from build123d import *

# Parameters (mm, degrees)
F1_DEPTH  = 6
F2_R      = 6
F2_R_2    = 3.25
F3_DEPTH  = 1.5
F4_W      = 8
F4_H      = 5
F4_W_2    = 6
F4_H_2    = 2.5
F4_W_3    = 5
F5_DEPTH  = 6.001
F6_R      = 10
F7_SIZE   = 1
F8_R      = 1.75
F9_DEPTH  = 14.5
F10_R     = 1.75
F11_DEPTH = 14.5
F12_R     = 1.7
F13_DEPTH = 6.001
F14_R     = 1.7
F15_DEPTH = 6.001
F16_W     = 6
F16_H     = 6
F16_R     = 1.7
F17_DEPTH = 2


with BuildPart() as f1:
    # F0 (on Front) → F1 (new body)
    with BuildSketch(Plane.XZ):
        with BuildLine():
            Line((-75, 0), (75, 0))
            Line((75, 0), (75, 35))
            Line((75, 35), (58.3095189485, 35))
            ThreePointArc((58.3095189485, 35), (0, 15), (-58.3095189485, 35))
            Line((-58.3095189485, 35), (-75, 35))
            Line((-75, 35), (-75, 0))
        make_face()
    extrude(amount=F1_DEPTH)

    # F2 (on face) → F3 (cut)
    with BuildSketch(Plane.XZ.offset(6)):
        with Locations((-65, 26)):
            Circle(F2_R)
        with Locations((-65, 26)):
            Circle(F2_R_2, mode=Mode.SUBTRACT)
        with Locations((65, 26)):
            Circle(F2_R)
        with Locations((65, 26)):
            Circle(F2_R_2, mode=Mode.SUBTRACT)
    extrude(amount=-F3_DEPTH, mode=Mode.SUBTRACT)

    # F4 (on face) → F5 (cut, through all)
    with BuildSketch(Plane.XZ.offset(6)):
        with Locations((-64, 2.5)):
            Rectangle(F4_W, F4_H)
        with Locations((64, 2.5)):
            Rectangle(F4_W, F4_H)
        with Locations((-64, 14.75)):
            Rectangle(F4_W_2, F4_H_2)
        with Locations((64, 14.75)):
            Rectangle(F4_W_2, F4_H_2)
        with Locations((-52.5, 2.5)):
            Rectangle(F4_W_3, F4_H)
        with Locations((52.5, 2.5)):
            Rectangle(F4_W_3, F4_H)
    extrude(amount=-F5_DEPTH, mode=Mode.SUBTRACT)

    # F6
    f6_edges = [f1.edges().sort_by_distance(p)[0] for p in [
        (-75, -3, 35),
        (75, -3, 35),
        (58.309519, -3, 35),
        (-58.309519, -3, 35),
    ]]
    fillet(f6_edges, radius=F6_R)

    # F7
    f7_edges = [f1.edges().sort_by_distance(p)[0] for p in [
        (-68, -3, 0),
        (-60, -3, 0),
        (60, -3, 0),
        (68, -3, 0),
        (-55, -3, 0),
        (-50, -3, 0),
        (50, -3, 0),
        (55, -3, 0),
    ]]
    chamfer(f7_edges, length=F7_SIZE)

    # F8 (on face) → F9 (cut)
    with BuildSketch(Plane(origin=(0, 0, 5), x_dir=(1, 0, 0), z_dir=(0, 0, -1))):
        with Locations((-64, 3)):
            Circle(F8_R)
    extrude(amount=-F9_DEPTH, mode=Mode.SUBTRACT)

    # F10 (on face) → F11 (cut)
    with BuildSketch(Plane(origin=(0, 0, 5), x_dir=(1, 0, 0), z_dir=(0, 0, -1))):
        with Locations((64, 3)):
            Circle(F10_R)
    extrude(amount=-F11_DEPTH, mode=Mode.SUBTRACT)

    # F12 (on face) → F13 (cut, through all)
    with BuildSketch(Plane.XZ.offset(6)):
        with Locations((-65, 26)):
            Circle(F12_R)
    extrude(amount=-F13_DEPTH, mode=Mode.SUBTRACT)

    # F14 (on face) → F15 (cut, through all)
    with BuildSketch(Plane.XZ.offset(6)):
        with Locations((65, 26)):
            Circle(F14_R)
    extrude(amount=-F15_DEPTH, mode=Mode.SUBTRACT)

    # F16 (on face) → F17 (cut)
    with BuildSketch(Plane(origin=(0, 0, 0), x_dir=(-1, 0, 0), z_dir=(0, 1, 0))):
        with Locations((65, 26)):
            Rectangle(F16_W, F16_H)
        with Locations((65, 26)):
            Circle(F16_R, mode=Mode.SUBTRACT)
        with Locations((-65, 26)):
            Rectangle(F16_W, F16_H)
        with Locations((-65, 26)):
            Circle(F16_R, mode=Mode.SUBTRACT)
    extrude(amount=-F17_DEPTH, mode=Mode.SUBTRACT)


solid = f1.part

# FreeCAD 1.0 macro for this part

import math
import FreeCAD as App
import Part
import Sketcher

V = App.Vector
Q = App.Units.Quantity


def edges_at(feature, points):
    """Names of the edges that pass closest to the given points."""
    edges = feature.Shape.Edges
    near = lambda p: min(range(len(edges)), key=lambda i: edges[i].distToShape(Part.Vertex(*p))[0])
    return sorted({f"Edge{near(p) + 1}" for p in points})


def add_polygon(sketch, points):
    """Adds a closed chain of lines whose ends are joined by coincident constraints."""
    first, n = sketch.GeometryCount, len(points)
    for a, b in zip(points, points[1:] + points[:1]):
        sketch.addGeometry(Part.LineSegment(App.Vector(*a, 0), App.Vector(*b, 0)), False)
    for i in range(n):
        sketch.addConstraint(Sketcher.Constraint("Coincident", first + i, 2, first + (i + 1) % n, 1))

doc = App.newDocument("Part")
body = doc.addObject("PartDesign::Body", "Body")

# Sketch on XZ plane
sketch1 = doc.addObject("Sketcher::SketchObject", "Sketch")
body.addObject(sketch1)
sketch1.AttachmentSupport = (doc.XZ_Plane, [""])
sketch1.MapMode = "FlatFace"
sketch1.addGeometry([
    Part.LineSegment(V(-75, 0, 0), V(75, 0, 0)),  # 0
    Part.LineSegment(V(75, 0, 0), V(75, 35, 0)),  # 1
    Part.LineSegment(V(75, 35, 0), V(58, 35, 0)),  # 2
    Part.ArcOfCircle(Part.Circle(V(0, 110, 0), V(0, 0, 1), 95), math.radians(-128), math.radians(-52)),  # 3
    Part.LineSegment(V(-58, 35, 0), V(-75, 35, 0)),  # 4
    Part.LineSegment(V(-75, 35, 0), V(-75, 0, 0)),  # 5
], False)
sketch1.addConstraint([
    Sketcher.Constraint("Coincident", 0, 2, 1, 1),
    Sketcher.Constraint("Coincident", 1, 2, 2, 1),
    Sketcher.Constraint("Coincident", 2, 2, 3, 2),
    Sketcher.Constraint("Coincident", 3, 1, 4, 1),
    Sketcher.Constraint("Coincident", 4, 2, 5, 1),
    Sketcher.Constraint("Coincident", 5, 2, 0, 1),
    Sketcher.Constraint("Horizontal", 0),
    Sketcher.Constraint("Vertical", 1),
    Sketcher.Constraint("Horizontal", 2),
    Sketcher.Constraint("Horizontal", 4),
    Sketcher.Constraint("Vertical", 5),
    Sketcher.Constraint("Symmetric", 0, 2, 5, 2, -1, 1),
    Sketcher.Constraint("Symmetric", 2, 2, 3, 1, -2),
    Sketcher.Constraint("Radius", 3, Q("95 mm")),
    Sketcher.Constraint("DistanceX", 0, 1, 0, 2, Q("150 mm")),
    Sketcher.Constraint("DistanceY", 1, 1, 1, 2, Q("35 mm")),
    Sketcher.Constraint("DistanceY", -1, 1, 3, 3, Q("110 mm")),
])
pad1 = doc.addObject("PartDesign::Pad", "Pad")
body.addObject(pad1)
pad1.Profile = sketch1
pad1.Length = 6

# Sketch on XZ plane
sketch2 = doc.addObject("Sketcher::SketchObject", "Sketch001")
body.addObject(sketch2)
sketch2.AttachmentSupport = (doc.XZ_Plane, [""])
sketch2.MapMode = "FlatFace"
sketch2.AttachmentOffset = App.Placement(V(0, 0, 6), App.Rotation())
sketch2.addGeometry([
    Part.Circle(V(-65, 26, 0), V(0, 0, 1), 6),
    Part.Circle(V(-65, 26, 0), V(0, 0, 1), 3.2),
    Part.Circle(V(65, 26, 0), V(0, 0, 1), 6),
    Part.Circle(V(65, 26, 0), V(0, 0, 1), 3.2),
], False)
sketch2.addConstraint([
    Sketcher.Constraint("Coincident", 1, 3, 0, 3),
    Sketcher.Constraint("Coincident", 3, 3, 2, 3),
    Sketcher.Constraint("Equal", 0, 2),
    Sketcher.Constraint("Equal", 1, 3),
    Sketcher.Constraint("Symmetric", 0, 3, 2, 3, -2),
    Sketcher.Constraint("Diameter", 0, Q("12 mm")),
    Sketcher.Constraint("Diameter", 1, Q("6.5 mm")),
    Sketcher.Constraint("DistanceX", 0, 3, -1, 1, Q("65 mm")),
    Sketcher.Constraint("DistanceY", -1, 1, 0, 3, Q("26 mm")),
])
pocket1 = doc.addObject("PartDesign::Pocket", "Pocket")
body.addObject(pocket1)
pocket1.Profile = sketch2
pocket1.Length = 1.5

# Sketch on XZ plane
sketch3 = doc.addObject("Sketcher::SketchObject", "Sketch002")
body.addObject(sketch3)
sketch3.AttachmentSupport = (doc.XZ_Plane, [""])
sketch3.MapMode = "FlatFace"
sketch3.AttachmentOffset = App.Placement(V(0, 0, 6), App.Rotation())
add_polygon(sketch3, [(-68, 5), (-68, 0), (-60, 0), (-60, 5)])  # lines 0-3
add_polygon(sketch3, [(60, 5), (60, 0), (68, 0), (68, 5)])  # lines 4-7
add_polygon(sketch3, [(-67, 16), (-67, 13.5), (-61, 13.5), (-61, 16)])  # lines 8-11
add_polygon(sketch3, [(61, 16), (61, 13.5), (67, 13.5), (67, 16)])  # lines 12-15
add_polygon(sketch3, [(-55, 5), (-55, 0), (-50, 0), (-50, 5)])  # lines 16-19
add_polygon(sketch3, [(50, 5), (50, 0), (55, 0), (55, 5)])  # lines 20-23
sketch3.addConstraint([
    Sketcher.Constraint("Vertical", 0),
    Sketcher.Constraint("Horizontal", 1),
    Sketcher.Constraint("Vertical", 2),
    Sketcher.Constraint("Horizontal", 3),
    Sketcher.Constraint("Vertical", 4),
    Sketcher.Constraint("Horizontal", 5),
    Sketcher.Constraint("Vertical", 6),
    Sketcher.Constraint("Horizontal", 7),
    Sketcher.Constraint("Vertical", 8),
    Sketcher.Constraint("Horizontal", 9),
    Sketcher.Constraint("Vertical", 10),
    Sketcher.Constraint("Horizontal", 11),
    Sketcher.Constraint("Vertical", 12),
    Sketcher.Constraint("Horizontal", 13),
    Sketcher.Constraint("Vertical", 14),
    Sketcher.Constraint("Horizontal", 15),
    Sketcher.Constraint("Vertical", 16),
    Sketcher.Constraint("Horizontal", 17),
    Sketcher.Constraint("Vertical", 18),
    Sketcher.Constraint("Horizontal", 19),
    Sketcher.Constraint("Vertical", 20),
    Sketcher.Constraint("Horizontal", 21),
    Sketcher.Constraint("Vertical", 22),
    Sketcher.Constraint("Horizontal", 23),
    Sketcher.Constraint("Symmetric", 1, 2, 4, 2, -1, 1),
    Sketcher.Constraint("Symmetric", 17, 2, 20, 2, -1, 1),
    Sketcher.Constraint("Symmetric", 0, 2, 5, 2, -2),
    Sketcher.Constraint("Symmetric", 9, 2, 12, 2, -2),
    Sketcher.Constraint("Symmetric", 11, 2, 14, 2, -2),
    Sketcher.Constraint("Symmetric", 16, 2, 21, 2, -2),
    Sketcher.Constraint("Horizontal", 3, 2, 6, 2),
    Sketcher.Constraint("Horizontal", 7, 2, 18, 2),
    Sketcher.Constraint("Horizontal", 19, 2, 22, 2),
    Sketcher.Constraint("Equal", 23, 0),
    Sketcher.Constraint("DistanceX", 1, 1, 1, 2, Q("8 mm")),
    Sketcher.Constraint("DistanceX", 9, 1, 9, 2, Q("6 mm")),
    Sketcher.Constraint("DistanceX", 17, 1, 17, 2, Q("5 mm")),
    Sketcher.Constraint("DistanceY", 8, 2, 8, 1, Q("2.5 mm")),
    Sketcher.Constraint("DistanceX", 0, 2, -1, 1, Q("68 mm")),
    Sketcher.Constraint("DistanceX", 8, 2, -1, 1, Q("67 mm")),
    Sketcher.Constraint("DistanceY", -1, 1, 10, 2, Q("16 mm")),
    Sketcher.Constraint("DistanceX", 16, 2, -1, 1, Q("55 mm")),
])
pocket2 = doc.addObject("PartDesign::Pocket", "Pocket001")
body.addObject(pocket2)
pocket2.Profile = sketch3
pocket2.Type = "ThroughAll"
doc.recompute()

fillet = doc.addObject("PartDesign::Fillet", "Fillet")
body.addObject(fillet)
fillet.Base = (pocket2, edges_at(pocket2, [
    (-75, -3, 35),
    (75, -3, 35),
    (58.31, -3, 35),
    (-58.31, -3, 35),
]))
fillet.Radius = 10
doc.recompute()

chamfer = doc.addObject("PartDesign::Chamfer", "Chamfer")
body.addObject(chamfer)
chamfer.Base = (fillet, edges_at(fillet, [
    (-68, -3, 0),
    (-60, -3, 0),
    (60, -3, 0),
    (68, -3, 0),
    (-55, -3, 0),
    (-50, -3, 0),
    (50, -3, 0),
    (55, -3, 0),
]))
chamfer.Size = 1

# Sketch on XY plane
sketch4 = doc.addObject("Sketcher::SketchObject", "Sketch003")
body.addObject(sketch4)
sketch4.AttachmentSupport = (doc.XY_Plane, [""])
sketch4.MapMode = "FlatFace"
sketch4.AttachmentOffset = App.Placement(V(0, 0, 5), App.Rotation())
sketch4.addGeometry(Part.Circle(V(-64, -3, 0), V(0, 0, 1), 1.8), False)
sketch4.addConstraint([
    Sketcher.Constraint("Diameter", 0, Q("3.5 mm")),
    Sketcher.Constraint("DistanceX", 0, 3, -1, 1, Q("64 mm")),
    Sketcher.Constraint("DistanceY", 0, 3, -1, 1, Q("3 mm")),
])
pocket3 = doc.addObject("PartDesign::Pocket", "Pocket002")
body.addObject(pocket3)
pocket3.Profile = sketch4
pocket3.Length = 14.5
pocket3.Reversed = True

# Sketch on XY plane
sketch5 = doc.addObject("Sketcher::SketchObject", "Sketch004")
body.addObject(sketch5)
sketch5.AttachmentSupport = (doc.XY_Plane, [""])
sketch5.MapMode = "FlatFace"
sketch5.AttachmentOffset = App.Placement(V(0, 0, 5), App.Rotation())
sketch5.addGeometry(Part.Circle(V(64, -3, 0), V(0, 0, 1), 1.8), False)
sketch5.addConstraint([
    Sketcher.Constraint("Diameter", 0, Q("3.5 mm")),
    Sketcher.Constraint("DistanceX", -1, 1, 0, 3, Q("64 mm")),
    Sketcher.Constraint("DistanceY", 0, 3, -1, 1, Q("3 mm")),
])
pocket4 = doc.addObject("PartDesign::Pocket", "Pocket003")
body.addObject(pocket4)
pocket4.Profile = sketch5
pocket4.Length = 14.5
pocket4.Reversed = True

# Sketch on XZ plane
sketch6 = doc.addObject("Sketcher::SketchObject", "Sketch005")
body.addObject(sketch6)
sketch6.AttachmentSupport = (doc.XZ_Plane, [""])
sketch6.MapMode = "FlatFace"
sketch6.AttachmentOffset = App.Placement(V(0, 0, 6), App.Rotation())
sketch6.addGeometry(Part.Circle(V(-65, 26, 0), V(0, 0, 1), 1.7), False)
sketch6.addConstraint([
    Sketcher.Constraint("Diameter", 0, Q("3.4 mm")),
    Sketcher.Constraint("DistanceX", 0, 3, -1, 1, Q("65 mm")),
    Sketcher.Constraint("DistanceY", -1, 1, 0, 3, Q("26 mm")),
])
pocket5 = doc.addObject("PartDesign::Pocket", "Pocket004")
body.addObject(pocket5)
pocket5.Profile = sketch6
pocket5.Type = "ThroughAll"

# Sketch on XZ plane
sketch7 = doc.addObject("Sketcher::SketchObject", "Sketch006")
body.addObject(sketch7)
sketch7.AttachmentSupport = (doc.XZ_Plane, [""])
sketch7.MapMode = "FlatFace"
sketch7.AttachmentOffset = App.Placement(V(0, 0, 6), App.Rotation())
sketch7.addGeometry(Part.Circle(V(65, 26, 0), V(0, 0, 1), 1.7), False)
sketch7.addConstraint([
    Sketcher.Constraint("Diameter", 0, Q("3.4 mm")),
    Sketcher.Constraint("DistanceX", -1, 1, 0, 3, Q("65 mm")),
    Sketcher.Constraint("DistanceY", -1, 1, 0, 3, Q("26 mm")),
])
pocket6 = doc.addObject("PartDesign::Pocket", "Pocket005")
body.addObject(pocket6)
pocket6.Profile = sketch7
pocket6.Type = "ThroughAll"

# Sketch on XZ plane
sketch8 = doc.addObject("Sketcher::SketchObject", "Sketch007")
body.addObject(sketch8)
sketch8.AttachmentSupport = (doc.XZ_Plane, [""])
sketch8.MapMode = "FlatFace"
add_polygon(sketch8, [(-62, 29), (-62, 23), (-68, 23), (-68, 29)])  # lines 0-3
sketch8.addGeometry(Part.Circle(V(-65, 26, 0), V(0, 0, 1), 1.7), False)  # 4
add_polygon(sketch8, [(68, 29), (68, 23), (62, 23), (62, 29)])  # lines 5-8
sketch8.addGeometry(Part.Circle(V(65, 26, 0), V(0, 0, 1), 1.7), False)  # 9
sketch8.addConstraint([
    Sketcher.Constraint("Vertical", 0),
    Sketcher.Constraint("Horizontal", 1),
    Sketcher.Constraint("Vertical", 2),
    Sketcher.Constraint("Horizontal", 3),
    Sketcher.Constraint("Vertical", 5),
    Sketcher.Constraint("Horizontal", 6),
    Sketcher.Constraint("Vertical", 7),
    Sketcher.Constraint("Horizontal", 8),
    Sketcher.Constraint("Equal", 4, 9),
    Sketcher.Constraint("Symmetric", 4, 3, 9, 3, -2),
    Sketcher.Constraint("Symmetric", 1, 2, 5, 2, -2),
    Sketcher.Constraint("Symmetric", 3, 2, 7, 2, -2),
    Sketcher.Constraint("Equal", 8, 0),
    Sketcher.Constraint("Diameter", 4, Q("3.4 mm")),
    Sketcher.Constraint("DistanceX", 1, 2, 1, 1, Q("6 mm")),
    Sketcher.Constraint("DistanceX", 4, 3, -1, 1, Q("65 mm")),
    Sketcher.Constraint("DistanceY", -1, 1, 4, 3, Q("26 mm")),
    Sketcher.Constraint("DistanceX", 0, 2, -1, 1, Q("62 mm")),
    Sketcher.Constraint("DistanceY", -1, 1, 0, 2, Q("23 mm")),
])
pocket7 = doc.addObject("PartDesign::Pocket", "Pocket006")
body.addObject(pocket7)
pocket7.Profile = sketch8
pocket7.Length = 2
pocket7.Reversed = True

doc.recompute()
